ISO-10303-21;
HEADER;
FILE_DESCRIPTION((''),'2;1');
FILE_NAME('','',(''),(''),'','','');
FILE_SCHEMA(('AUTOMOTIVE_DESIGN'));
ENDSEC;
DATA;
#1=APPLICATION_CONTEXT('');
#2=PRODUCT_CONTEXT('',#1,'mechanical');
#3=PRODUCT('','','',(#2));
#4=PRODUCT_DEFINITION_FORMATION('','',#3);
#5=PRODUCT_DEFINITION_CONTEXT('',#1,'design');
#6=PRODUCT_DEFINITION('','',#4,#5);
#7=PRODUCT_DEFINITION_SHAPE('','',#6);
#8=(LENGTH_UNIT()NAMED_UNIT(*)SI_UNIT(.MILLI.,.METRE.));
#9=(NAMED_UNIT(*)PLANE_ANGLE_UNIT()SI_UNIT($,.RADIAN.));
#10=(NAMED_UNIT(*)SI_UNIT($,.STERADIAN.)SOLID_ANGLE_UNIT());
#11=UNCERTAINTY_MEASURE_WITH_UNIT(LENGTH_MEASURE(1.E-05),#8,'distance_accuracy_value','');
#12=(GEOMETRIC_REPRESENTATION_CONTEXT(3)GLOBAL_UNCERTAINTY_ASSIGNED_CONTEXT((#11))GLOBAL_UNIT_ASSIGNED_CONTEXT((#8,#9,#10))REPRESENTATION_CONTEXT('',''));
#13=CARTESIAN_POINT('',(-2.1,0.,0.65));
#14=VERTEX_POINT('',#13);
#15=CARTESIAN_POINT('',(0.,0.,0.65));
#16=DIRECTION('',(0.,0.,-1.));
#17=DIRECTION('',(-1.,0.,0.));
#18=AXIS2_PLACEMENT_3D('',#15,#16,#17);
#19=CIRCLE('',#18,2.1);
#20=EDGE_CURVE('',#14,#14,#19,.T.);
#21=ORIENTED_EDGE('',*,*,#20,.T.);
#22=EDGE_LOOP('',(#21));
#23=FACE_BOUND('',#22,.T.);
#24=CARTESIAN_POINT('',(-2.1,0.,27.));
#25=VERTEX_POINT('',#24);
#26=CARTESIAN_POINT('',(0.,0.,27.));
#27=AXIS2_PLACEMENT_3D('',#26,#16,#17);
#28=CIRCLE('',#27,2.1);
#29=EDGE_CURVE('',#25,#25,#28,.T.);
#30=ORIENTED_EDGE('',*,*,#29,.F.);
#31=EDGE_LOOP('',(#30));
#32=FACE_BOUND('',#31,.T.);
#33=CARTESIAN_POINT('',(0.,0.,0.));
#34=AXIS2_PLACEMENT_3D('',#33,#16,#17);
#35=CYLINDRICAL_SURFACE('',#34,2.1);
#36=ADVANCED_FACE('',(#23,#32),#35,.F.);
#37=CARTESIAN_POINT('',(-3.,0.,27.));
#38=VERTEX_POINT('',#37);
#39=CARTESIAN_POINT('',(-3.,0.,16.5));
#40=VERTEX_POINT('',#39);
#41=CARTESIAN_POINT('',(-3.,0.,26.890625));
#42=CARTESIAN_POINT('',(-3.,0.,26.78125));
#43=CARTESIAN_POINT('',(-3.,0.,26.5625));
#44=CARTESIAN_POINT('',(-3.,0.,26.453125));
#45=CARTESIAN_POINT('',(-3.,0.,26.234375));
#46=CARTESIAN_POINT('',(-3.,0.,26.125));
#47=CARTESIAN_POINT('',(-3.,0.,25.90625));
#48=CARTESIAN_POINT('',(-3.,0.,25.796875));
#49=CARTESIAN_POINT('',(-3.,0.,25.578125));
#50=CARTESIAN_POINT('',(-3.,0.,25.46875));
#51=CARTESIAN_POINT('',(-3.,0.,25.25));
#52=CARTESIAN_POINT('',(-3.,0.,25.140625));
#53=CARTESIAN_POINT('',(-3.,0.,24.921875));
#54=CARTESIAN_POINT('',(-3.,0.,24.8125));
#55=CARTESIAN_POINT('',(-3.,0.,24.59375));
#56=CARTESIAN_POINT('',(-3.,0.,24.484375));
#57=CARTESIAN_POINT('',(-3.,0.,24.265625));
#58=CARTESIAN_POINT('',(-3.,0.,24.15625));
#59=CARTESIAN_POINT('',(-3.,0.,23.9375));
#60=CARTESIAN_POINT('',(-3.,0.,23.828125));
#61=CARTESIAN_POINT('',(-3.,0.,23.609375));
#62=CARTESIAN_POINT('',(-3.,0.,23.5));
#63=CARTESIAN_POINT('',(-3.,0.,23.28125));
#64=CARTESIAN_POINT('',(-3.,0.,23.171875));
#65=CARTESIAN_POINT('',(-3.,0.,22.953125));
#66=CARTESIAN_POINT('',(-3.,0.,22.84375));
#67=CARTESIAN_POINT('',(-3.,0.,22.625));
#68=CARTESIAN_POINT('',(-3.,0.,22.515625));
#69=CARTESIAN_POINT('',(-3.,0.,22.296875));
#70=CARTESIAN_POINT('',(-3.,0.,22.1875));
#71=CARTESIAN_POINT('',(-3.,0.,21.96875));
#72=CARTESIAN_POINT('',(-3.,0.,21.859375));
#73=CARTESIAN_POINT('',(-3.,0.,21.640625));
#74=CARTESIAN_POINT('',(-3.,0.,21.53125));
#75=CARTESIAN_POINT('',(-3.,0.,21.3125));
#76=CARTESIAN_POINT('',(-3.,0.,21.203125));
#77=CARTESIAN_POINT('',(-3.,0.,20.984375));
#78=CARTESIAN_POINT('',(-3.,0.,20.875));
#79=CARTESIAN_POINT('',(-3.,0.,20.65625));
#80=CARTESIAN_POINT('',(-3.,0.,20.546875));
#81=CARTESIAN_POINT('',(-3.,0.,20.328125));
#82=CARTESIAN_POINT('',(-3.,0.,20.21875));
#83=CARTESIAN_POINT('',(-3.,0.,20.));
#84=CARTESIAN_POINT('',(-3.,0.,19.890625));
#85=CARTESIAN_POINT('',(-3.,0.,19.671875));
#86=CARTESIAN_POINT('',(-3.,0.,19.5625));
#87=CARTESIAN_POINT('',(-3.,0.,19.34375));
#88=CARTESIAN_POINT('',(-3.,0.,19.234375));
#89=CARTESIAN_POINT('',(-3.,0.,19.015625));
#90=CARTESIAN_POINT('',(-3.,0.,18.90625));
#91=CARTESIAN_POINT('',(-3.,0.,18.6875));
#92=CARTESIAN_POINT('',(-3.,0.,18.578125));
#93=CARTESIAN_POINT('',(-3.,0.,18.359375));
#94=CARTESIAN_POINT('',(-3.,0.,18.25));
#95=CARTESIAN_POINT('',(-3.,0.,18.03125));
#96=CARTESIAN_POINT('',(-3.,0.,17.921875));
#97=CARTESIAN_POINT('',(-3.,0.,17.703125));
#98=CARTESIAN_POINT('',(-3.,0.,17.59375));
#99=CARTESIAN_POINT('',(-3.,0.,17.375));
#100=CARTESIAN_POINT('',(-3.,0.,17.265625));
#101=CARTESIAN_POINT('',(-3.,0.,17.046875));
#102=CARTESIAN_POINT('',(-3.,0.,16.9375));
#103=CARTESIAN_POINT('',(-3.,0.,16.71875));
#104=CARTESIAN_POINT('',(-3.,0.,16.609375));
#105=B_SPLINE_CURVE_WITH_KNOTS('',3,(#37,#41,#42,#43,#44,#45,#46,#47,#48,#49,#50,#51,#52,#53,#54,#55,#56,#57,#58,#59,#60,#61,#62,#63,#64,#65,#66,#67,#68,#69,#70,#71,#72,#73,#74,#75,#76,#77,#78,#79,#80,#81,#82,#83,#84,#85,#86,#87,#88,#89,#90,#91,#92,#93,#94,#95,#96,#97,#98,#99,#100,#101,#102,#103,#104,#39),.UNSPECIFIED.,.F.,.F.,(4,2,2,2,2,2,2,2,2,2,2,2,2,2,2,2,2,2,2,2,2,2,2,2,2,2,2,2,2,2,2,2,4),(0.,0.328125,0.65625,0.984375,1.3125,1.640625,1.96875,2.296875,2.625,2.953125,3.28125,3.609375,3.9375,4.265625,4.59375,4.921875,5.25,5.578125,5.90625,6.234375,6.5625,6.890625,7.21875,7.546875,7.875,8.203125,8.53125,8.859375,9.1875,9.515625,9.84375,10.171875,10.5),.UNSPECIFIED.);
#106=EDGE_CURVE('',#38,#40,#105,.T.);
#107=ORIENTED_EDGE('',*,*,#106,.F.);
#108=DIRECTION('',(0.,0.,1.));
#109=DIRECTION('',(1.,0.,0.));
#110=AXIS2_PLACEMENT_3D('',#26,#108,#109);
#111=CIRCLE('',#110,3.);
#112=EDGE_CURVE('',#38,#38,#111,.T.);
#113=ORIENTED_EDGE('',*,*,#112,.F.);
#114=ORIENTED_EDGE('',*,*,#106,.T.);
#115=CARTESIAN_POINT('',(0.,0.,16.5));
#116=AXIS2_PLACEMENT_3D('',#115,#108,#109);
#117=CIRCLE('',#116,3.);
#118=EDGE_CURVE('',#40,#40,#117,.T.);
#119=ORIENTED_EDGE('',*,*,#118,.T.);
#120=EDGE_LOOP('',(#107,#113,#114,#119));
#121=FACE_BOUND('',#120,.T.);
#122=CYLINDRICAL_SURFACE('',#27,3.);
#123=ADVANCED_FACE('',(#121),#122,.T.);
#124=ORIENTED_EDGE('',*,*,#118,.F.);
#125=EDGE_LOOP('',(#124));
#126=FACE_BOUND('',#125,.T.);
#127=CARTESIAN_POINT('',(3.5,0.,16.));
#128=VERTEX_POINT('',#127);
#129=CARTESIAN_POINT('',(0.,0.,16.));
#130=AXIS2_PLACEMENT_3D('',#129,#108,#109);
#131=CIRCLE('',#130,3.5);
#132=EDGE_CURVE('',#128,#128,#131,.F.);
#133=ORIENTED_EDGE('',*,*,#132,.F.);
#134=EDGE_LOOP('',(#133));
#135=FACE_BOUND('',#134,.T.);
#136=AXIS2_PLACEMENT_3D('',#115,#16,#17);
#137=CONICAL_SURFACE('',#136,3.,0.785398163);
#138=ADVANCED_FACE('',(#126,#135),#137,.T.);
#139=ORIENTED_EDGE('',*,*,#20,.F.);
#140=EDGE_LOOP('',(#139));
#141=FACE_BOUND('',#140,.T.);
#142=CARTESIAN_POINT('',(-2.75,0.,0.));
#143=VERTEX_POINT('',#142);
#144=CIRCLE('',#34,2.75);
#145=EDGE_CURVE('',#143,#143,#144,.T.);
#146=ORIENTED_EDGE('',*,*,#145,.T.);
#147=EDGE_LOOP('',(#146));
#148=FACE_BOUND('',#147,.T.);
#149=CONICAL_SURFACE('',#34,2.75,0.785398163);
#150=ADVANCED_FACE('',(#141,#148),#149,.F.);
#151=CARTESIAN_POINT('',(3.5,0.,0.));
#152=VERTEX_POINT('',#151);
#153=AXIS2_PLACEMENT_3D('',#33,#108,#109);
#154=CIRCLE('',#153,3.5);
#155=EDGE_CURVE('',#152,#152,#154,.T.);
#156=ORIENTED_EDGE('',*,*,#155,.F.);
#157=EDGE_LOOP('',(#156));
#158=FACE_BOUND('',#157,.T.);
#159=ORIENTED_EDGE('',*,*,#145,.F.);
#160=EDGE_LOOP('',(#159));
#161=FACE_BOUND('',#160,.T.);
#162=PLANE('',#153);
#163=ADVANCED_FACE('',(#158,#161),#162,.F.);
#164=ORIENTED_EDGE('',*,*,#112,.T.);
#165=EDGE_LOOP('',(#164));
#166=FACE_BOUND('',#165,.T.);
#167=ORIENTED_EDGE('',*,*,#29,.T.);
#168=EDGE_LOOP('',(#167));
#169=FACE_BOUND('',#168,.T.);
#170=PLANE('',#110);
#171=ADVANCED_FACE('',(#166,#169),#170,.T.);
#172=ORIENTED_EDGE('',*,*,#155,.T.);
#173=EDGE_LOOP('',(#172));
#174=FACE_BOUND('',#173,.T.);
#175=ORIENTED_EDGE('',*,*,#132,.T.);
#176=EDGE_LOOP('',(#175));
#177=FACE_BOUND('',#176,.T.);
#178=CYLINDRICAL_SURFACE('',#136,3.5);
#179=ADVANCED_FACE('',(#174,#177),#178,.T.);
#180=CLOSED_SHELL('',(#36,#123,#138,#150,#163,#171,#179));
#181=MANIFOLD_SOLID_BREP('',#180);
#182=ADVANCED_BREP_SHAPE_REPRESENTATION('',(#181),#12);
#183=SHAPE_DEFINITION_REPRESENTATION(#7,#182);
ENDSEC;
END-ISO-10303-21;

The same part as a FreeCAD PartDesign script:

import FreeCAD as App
import Part
import Sketcher
from FreeCAD import Vector


def edges_at(feature, points):
    """Names of the edges that pass closest to the given points."""
    edges = feature.Shape.Edges
    near = lambda p: min(range(len(edges)), key=lambda i: edges[i].distToShape(Part.Vertex(*p))[0])
    return sorted({f"Edge{near(p) + 1}" for p in points})

doc = App.newDocument("Part")
body = doc.addObject("PartDesign::Body", "Body")

# Sketch on XY plane
sketch1 = body.newObject("Sketcher::SketchObject", "Sketch")
sketch1.AttachmentSupport = (doc.getObject("XY_Plane"), [""])
sketch1.MapMode = "FlatFace"
sketch1.addGeometry(Part.Circle(Vector(0, 0, 0), Vector(0, 0, 1), 3.5), False)
sketch1.addConstraint([
    Sketcher.Constraint("Coincident", 0, 3, -1, 1),
    Sketcher.Constraint("Diameter", 0, 7.0),
])
pad1 = body.newObject("PartDesign::Pad", "Pad")
pad1.Profile = sketch1
pad1.Length = 16.5
doc.recompute()

chamfer = body.newObject("PartDesign::Chamfer", "Chamfer")
chamfer.Base = (pad1, edges_at(pad1, [(-3.5, 0, 16.5)]))
chamfer.Size = 0.5

# Sketch on XY plane
sketch2 = body.newObject("Sketcher::SketchObject", "Sketch001")
sketch2.AttachmentSupport = (doc.getObject("XY_Plane"), [""])
sketch2.MapMode = "FlatFace"
sketch2.AttachmentOffset = App.Placement(Vector(0, 0, 16.5), App.Rotation())
sketch2.addGeometry(Part.Circle(Vector(0, 0, 0), Vector(0, 0, 1), 3), False)
sketch2.addConstraint([
    Sketcher.Constraint("Coincident", 0, 3, -1, 1),
    Sketcher.Constraint("Diameter", 0, 6.0),
])
pad2 = body.newObject("PartDesign::Pad", "Pad001")
pad2.Profile = sketch2
pad2.Length = 10.5

# Sketch on XY plane
sketch3 = body.newObject("Sketcher::SketchObject", "Sketch002")
sketch3.AttachmentSupport = (doc.getObject("XY_Plane"), [""])
sketch3.MapMode = "FlatFace"
sketch3.addGeometry(Part.Circle(Vector(0, 0, 0), Vector(0, 0, 1), 2.1), False)
sketch3.addConstraint([
    Sketcher.Constraint("Coincident", 0, 3, -1, 1),
    Sketcher.Constraint("Diameter", 0, 4.2),
])
doc.recompute()
hole = body.newObject("PartDesign::Hole", "Hole")
hole.Profile = sketch3
hole.ThreadType = "None"
hole.Diameter = 4.2
hole.DepthType = "ThroughAll"
hole.HoleCutType = "Countersink"
hole.HoleCutDiameter = 5.5
hole.HoleCutCountersinkAngle = 90
hole.Reversed = True

doc.recompute()
